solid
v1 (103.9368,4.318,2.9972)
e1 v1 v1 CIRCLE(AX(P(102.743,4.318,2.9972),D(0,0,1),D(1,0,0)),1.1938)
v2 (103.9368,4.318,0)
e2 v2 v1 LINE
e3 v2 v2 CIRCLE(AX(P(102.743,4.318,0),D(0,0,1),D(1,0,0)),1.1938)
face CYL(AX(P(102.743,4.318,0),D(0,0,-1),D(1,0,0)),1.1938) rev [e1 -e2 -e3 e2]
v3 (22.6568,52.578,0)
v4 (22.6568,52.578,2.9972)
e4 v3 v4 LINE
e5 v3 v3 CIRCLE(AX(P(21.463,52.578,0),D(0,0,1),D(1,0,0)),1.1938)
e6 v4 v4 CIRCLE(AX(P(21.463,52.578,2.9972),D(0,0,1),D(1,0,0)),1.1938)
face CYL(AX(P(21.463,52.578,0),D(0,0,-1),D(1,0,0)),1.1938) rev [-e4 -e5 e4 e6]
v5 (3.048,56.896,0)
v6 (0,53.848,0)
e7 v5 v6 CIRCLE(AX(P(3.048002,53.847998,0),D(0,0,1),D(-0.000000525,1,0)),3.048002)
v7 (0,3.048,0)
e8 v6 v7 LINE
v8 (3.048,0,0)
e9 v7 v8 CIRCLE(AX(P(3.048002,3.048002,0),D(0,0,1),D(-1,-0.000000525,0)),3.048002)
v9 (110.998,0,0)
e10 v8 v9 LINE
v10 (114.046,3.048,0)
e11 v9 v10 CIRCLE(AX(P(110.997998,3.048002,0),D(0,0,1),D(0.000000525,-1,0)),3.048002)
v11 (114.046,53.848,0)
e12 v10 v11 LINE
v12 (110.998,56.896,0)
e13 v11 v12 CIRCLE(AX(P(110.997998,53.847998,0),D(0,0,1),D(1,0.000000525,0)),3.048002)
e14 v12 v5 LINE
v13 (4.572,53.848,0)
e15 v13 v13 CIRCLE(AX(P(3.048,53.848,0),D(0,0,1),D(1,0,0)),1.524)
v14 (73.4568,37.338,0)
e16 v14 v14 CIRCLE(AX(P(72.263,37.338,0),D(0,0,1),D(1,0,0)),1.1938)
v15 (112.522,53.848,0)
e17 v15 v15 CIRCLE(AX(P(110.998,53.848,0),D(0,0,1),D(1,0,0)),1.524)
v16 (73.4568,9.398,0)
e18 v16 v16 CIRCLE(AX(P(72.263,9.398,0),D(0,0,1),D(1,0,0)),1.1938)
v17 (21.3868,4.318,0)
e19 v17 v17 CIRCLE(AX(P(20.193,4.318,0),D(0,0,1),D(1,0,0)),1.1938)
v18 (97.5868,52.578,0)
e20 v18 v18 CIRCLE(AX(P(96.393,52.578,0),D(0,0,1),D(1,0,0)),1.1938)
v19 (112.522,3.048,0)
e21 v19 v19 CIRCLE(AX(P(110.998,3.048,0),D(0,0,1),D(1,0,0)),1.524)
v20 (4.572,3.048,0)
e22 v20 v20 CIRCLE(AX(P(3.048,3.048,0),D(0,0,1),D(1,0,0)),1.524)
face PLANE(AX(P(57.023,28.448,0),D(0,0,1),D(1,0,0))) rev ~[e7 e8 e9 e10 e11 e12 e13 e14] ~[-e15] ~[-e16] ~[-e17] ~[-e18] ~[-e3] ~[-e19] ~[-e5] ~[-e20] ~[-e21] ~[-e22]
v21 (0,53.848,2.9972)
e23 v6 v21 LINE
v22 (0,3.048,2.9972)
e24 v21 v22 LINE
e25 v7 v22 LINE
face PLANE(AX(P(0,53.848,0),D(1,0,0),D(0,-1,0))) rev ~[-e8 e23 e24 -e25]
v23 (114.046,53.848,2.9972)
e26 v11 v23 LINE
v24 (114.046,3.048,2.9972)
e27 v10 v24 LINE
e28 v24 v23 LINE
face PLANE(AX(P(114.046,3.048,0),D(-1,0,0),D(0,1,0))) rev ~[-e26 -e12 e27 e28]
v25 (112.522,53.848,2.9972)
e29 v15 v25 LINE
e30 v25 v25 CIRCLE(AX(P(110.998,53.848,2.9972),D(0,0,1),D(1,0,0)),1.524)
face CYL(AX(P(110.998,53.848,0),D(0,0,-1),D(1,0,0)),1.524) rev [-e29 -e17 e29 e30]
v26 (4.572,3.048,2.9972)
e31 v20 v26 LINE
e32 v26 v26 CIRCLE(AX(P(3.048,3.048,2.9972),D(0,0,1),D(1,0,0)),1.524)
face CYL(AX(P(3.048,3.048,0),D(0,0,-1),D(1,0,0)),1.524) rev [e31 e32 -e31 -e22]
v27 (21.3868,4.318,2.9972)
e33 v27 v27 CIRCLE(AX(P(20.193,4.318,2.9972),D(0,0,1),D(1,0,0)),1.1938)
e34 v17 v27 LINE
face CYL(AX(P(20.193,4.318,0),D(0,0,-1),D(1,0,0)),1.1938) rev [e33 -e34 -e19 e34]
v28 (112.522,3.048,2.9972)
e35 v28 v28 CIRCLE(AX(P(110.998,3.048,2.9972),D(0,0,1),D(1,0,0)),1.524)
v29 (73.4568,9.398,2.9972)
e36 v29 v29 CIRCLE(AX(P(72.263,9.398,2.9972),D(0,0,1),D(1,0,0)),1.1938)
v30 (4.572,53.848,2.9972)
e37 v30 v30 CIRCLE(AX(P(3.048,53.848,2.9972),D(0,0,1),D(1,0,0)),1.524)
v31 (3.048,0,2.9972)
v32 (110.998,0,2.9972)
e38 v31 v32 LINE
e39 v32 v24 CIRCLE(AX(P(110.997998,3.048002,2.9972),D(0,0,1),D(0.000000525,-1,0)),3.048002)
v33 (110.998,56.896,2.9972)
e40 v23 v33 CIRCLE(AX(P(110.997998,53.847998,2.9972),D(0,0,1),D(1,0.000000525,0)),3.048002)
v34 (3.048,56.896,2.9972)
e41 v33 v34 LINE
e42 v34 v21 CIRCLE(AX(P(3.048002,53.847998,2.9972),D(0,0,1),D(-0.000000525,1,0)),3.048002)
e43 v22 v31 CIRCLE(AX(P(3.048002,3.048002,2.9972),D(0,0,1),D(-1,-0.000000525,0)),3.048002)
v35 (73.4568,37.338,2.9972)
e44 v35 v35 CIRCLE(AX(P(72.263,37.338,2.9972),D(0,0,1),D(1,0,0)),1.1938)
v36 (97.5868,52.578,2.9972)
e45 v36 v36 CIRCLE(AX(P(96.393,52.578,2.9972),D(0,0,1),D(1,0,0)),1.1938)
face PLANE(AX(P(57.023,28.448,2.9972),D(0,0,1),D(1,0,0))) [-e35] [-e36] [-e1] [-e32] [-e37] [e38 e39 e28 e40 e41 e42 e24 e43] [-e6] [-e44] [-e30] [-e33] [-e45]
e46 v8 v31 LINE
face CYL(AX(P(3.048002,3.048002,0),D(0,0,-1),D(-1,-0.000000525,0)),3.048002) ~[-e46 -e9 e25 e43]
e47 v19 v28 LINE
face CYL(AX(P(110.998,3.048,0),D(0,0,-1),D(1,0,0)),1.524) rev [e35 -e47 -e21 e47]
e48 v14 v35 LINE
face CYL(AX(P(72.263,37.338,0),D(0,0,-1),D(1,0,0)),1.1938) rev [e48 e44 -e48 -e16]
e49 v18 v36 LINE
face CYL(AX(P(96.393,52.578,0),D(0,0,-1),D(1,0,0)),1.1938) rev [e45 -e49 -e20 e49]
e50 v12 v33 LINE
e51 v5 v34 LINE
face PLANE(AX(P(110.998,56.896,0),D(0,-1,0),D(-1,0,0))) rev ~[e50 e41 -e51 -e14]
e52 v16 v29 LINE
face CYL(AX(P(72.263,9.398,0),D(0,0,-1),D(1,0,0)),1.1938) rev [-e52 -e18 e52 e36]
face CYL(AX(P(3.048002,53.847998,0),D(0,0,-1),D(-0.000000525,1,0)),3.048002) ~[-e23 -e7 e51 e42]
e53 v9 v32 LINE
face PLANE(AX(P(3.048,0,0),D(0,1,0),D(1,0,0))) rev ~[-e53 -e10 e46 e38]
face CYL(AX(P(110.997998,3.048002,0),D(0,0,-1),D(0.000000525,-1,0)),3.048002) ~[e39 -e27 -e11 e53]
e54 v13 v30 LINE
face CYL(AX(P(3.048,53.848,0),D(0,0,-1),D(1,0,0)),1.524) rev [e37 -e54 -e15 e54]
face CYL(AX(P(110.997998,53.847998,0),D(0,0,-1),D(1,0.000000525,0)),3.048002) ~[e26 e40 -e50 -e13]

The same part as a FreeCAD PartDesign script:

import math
import FreeCAD as App
import Part
import Sketcher
Q = App.Units.Quantity

doc = App.newDocument("Part")
body = doc.addObject("PartDesign::Body", "Body")

sketch1 = body.newObject("Sketcher::SketchObject", "Sketch")
sketch1.AttachmentSupport = (doc.getObject("XY_Plane"), [""])
sketch1.MapMode = "FlatFace"
sketch1.addGeometry(Part.ArcOfCircle(Part.Circle(App.Vector(3.048002, 3.048002, 0), App.Vector(0, 0, 1), 3.048002), math.radians(-179.99997), math.radians(-90.00003)), False)
sketch1.addGeometry(Part.LineSegment(App.Vector(3.048, 0, 0), App.Vector(110.998, 0, 0)), False)
sketch1.addGeometry(Part.ArcOfCircle(Part.Circle(App.Vector(110.997998, 3.048002, 0), App.Vector(0, 0, 1), 3.048002), math.radians(-89.99997), math.radians(-0.00003)), False)
sketch1.addGeometry(Part.LineSegment(App.Vector(114.046, 3.048, 0), App.Vector(114.046, 53.848, 0)), False)
sketch1.addGeometry(Part.ArcOfCircle(Part.Circle(App.Vector(110.997998, 53.847998, 0), App.Vector(0, 0, 1), 3.048002), math.radians(0.00003), math.radians(89.99997)), False)
sketch1.addGeometry(Part.LineSegment(App.Vector(110.998, 56.896, 0), App.Vector(3.048, 56.896, 0)), False)
sketch1.addGeometry(Part.ArcOfCircle(Part.Circle(App.Vector(3.048002, 53.847998, 0), App.Vector(0, 0, 1), 3.048002), math.radians(90.00003), math.radians(179.99997)), False)
sketch1.addGeometry(Part.LineSegment(App.Vector(0, 53.848, 0), App.Vector(0, 3.048, 0)), False)
sketch1.addGeometry(Part.Circle(App.Vector(3.048, 3.048, 0), App.Vector(0, 0, 1), 1.524), False)
sketch1.addGeometry(Part.Circle(App.Vector(20.193, 4.318, 0), App.Vector(0, 0, 1), 1.1938), False)
sketch1.addGeometry(Part.Circle(App.Vector(72.263, 9.398, 0), App.Vector(0, 0, 1), 1.1938), False)
sketch1.addGeometry(Part.Circle(App.Vector(102.743, 4.318, 0), App.Vector(0, 0, 1), 1.1938), False)
sketch1.addGeometry(Part.Circle(App.Vector(110.998, 3.048, 0), App.Vector(0, 0, 1), 1.524), False)
sketch1.addGeometry(Part.Circle(App.Vector(3.048, 53.848, 0), App.Vector(0, 0, 1), 1.524), False)
sketch1.addGeometry(Part.Circle(App.Vector(21.463, 52.578, 0), App.Vector(0, 0, 1), 1.1938), False)
sketch1.addGeometry(Part.Circle(App.Vector(72.263, 37.338, 0), App.Vector(0, 0, 1), 1.1938), False)
sketch1.addGeometry(Part.Circle(App.Vector(96.393, 52.578, 0), App.Vector(0, 0, 1), 1.1938), False)
sketch1.addGeometry(Part.Circle(App.Vector(110.998, 53.848, 0), App.Vector(0, 0, 1), 1.524), False)
sketch1.addConstraint(Sketcher.Constraint("Tangent", 0, 2, 1, 1))
sketch1.addConstraint(Sketcher.Constraint("Tangent", 1, 2, 2, 1))
sketch1.addConstraint(Sketcher.Constraint("Tangent", 2, 2, 3, 1))
sketch1.addConstraint(Sketcher.Constraint("Tangent", 3, 2, 4, 1))
sketch1.addConstraint(Sketcher.Constraint("Tangent", 4, 2, 5, 1))
sketch1.addConstraint(Sketcher.Constraint("Tangent", 5, 2, 6, 1))
sketch1.addConstraint(Sketcher.Constraint("Tangent", 6, 2, 7, 1))
sketch1.addConstraint(Sketcher.Constraint("Tangent", 7, 2, 0, 1))
sketch1.addConstraint(Sketcher.Constraint("Horizontal", 1))
sketch1.addConstraint(Sketcher.Constraint("Vertical", 3))
sketch1.addConstraint(Sketcher.Constraint("Horizontal", 5))
sketch1.addConstraint(Sketcher.Constraint("Vertical", 7))
sketch1.addConstraint(Sketcher.Constraint("Coincident", 8, 3, 0, 3))
sketch1.addConstraint(Sketcher.Constraint("Coincident", 12, 3, 2, 3))
sketch1.addConstraint(Sketcher.Constraint("Coincident", 13, 3, 6, 3))
sketch1.addConstraint(Sketcher.Constraint("Coincident", 17, 3, 4, 3))
sketch1.addConstraint(Sketcher.Constraint("Equal", 0, 2))
sketch1.addConstraint(Sketcher.Constraint("Equal", 2, 4))
sketch1.addConstraint(Sketcher.Constraint("Equal", 4, 6))
sketch1.addConstraint(Sketcher.Constraint("Equal", 9, 10))
sketch1.addConstraint(Sketcher.Constraint("Equal", 10, 11))
sketch1.addConstraint(Sketcher.Constraint("Equal", 8, 12))
sketch1.addConstraint(Sketcher.Constraint("Equal", 12, 13))
sketch1.addConstraint(Sketcher.Constraint("Equal", 11, 14))
sketch1.addConstraint(Sketcher.Constraint("Equal", 14, 15))
sketch1.addConstraint(Sketcher.Constraint("Equal", 15, 16))
sketch1.addConstraint(Sketcher.Constraint("Equal", 13, 17))
sketch1.addConstraint(Sketcher.Constraint("PointOnObject", 0, 2, -1))
sketch1.addConstraint(Sketcher.Constraint("PointOnObject", 6, 2, -2))
sketch1.addConstraint(Sketcher.Constraint("Horizontal", 9, 3, 11, 3))
sketch1.addConstraint(Sketcher.Constraint("Horizontal", 14, 3, 16, 3))
sketch1.addConstraint(Sketcher.Constraint("Vertical", 10, 3, 15, 3))
sketch1.addConstraint(Sketcher.Constraint("Diameter", 8, Q("0.12 in")))
sketch1.addConstraint(Sketcher.Constraint("DistanceY", 3, 1, 3, 2, Q("2 in")))
sketch1.addConstraint(Sketcher.Constraint("Radius", 0, Q("0.1200001 in")))
sketch1.addConstraint(Sketcher.Constraint("Diameter", 9, Q("0.094 in")))
sketch1.addConstraint(Sketcher.Constraint("DistanceX", 1, 1, 1, 2, Q("4.25 in")))
sketch1.addConstraint(Sketcher.Constraint("DistanceY", 9, 3, 10, 3, Q("0.2 in")))
sketch1.addConstraint(Sketcher.Constraint("DistanceX", 10, 3, 11, 3, Q("1.2 in")))
sketch1.addConstraint(Sketcher.Constraint("DistanceY", 9, 3, 14, 3, Q("1.9 in")))
sketch1.addConstraint(Sketcher.Constraint("DistanceY", 10, 3, 15, 3, Q("1.1 in")))
sketch1.addConstraint(Sketcher.Constraint("DistanceY", -1, 1, 9, 3, Q("0.17 in")))
sketch1.addConstraint(Sketcher.Constraint("DistanceX", 9, 3, 10, 3, Q("2.05 in")))
sketch1.addConstraint(Sketcher.Constraint("DistanceX", 9, 3, 14, 3, Q("0.05 in")))
sketch1.addConstraint(Sketcher.Constraint("DistanceX", 15, 3, 16, 3, Q("0.95 in")))
sketch1.addConstraint(Sketcher.Constraint("DistanceX", -1, 1, 9, 3, Q("0.795 in")))
pad1 = body.newObject("PartDesign::Pad", "Pad")
pad1.Profile = sketch1
pad1.Length = Q("0.118 in")

doc.recompute()
